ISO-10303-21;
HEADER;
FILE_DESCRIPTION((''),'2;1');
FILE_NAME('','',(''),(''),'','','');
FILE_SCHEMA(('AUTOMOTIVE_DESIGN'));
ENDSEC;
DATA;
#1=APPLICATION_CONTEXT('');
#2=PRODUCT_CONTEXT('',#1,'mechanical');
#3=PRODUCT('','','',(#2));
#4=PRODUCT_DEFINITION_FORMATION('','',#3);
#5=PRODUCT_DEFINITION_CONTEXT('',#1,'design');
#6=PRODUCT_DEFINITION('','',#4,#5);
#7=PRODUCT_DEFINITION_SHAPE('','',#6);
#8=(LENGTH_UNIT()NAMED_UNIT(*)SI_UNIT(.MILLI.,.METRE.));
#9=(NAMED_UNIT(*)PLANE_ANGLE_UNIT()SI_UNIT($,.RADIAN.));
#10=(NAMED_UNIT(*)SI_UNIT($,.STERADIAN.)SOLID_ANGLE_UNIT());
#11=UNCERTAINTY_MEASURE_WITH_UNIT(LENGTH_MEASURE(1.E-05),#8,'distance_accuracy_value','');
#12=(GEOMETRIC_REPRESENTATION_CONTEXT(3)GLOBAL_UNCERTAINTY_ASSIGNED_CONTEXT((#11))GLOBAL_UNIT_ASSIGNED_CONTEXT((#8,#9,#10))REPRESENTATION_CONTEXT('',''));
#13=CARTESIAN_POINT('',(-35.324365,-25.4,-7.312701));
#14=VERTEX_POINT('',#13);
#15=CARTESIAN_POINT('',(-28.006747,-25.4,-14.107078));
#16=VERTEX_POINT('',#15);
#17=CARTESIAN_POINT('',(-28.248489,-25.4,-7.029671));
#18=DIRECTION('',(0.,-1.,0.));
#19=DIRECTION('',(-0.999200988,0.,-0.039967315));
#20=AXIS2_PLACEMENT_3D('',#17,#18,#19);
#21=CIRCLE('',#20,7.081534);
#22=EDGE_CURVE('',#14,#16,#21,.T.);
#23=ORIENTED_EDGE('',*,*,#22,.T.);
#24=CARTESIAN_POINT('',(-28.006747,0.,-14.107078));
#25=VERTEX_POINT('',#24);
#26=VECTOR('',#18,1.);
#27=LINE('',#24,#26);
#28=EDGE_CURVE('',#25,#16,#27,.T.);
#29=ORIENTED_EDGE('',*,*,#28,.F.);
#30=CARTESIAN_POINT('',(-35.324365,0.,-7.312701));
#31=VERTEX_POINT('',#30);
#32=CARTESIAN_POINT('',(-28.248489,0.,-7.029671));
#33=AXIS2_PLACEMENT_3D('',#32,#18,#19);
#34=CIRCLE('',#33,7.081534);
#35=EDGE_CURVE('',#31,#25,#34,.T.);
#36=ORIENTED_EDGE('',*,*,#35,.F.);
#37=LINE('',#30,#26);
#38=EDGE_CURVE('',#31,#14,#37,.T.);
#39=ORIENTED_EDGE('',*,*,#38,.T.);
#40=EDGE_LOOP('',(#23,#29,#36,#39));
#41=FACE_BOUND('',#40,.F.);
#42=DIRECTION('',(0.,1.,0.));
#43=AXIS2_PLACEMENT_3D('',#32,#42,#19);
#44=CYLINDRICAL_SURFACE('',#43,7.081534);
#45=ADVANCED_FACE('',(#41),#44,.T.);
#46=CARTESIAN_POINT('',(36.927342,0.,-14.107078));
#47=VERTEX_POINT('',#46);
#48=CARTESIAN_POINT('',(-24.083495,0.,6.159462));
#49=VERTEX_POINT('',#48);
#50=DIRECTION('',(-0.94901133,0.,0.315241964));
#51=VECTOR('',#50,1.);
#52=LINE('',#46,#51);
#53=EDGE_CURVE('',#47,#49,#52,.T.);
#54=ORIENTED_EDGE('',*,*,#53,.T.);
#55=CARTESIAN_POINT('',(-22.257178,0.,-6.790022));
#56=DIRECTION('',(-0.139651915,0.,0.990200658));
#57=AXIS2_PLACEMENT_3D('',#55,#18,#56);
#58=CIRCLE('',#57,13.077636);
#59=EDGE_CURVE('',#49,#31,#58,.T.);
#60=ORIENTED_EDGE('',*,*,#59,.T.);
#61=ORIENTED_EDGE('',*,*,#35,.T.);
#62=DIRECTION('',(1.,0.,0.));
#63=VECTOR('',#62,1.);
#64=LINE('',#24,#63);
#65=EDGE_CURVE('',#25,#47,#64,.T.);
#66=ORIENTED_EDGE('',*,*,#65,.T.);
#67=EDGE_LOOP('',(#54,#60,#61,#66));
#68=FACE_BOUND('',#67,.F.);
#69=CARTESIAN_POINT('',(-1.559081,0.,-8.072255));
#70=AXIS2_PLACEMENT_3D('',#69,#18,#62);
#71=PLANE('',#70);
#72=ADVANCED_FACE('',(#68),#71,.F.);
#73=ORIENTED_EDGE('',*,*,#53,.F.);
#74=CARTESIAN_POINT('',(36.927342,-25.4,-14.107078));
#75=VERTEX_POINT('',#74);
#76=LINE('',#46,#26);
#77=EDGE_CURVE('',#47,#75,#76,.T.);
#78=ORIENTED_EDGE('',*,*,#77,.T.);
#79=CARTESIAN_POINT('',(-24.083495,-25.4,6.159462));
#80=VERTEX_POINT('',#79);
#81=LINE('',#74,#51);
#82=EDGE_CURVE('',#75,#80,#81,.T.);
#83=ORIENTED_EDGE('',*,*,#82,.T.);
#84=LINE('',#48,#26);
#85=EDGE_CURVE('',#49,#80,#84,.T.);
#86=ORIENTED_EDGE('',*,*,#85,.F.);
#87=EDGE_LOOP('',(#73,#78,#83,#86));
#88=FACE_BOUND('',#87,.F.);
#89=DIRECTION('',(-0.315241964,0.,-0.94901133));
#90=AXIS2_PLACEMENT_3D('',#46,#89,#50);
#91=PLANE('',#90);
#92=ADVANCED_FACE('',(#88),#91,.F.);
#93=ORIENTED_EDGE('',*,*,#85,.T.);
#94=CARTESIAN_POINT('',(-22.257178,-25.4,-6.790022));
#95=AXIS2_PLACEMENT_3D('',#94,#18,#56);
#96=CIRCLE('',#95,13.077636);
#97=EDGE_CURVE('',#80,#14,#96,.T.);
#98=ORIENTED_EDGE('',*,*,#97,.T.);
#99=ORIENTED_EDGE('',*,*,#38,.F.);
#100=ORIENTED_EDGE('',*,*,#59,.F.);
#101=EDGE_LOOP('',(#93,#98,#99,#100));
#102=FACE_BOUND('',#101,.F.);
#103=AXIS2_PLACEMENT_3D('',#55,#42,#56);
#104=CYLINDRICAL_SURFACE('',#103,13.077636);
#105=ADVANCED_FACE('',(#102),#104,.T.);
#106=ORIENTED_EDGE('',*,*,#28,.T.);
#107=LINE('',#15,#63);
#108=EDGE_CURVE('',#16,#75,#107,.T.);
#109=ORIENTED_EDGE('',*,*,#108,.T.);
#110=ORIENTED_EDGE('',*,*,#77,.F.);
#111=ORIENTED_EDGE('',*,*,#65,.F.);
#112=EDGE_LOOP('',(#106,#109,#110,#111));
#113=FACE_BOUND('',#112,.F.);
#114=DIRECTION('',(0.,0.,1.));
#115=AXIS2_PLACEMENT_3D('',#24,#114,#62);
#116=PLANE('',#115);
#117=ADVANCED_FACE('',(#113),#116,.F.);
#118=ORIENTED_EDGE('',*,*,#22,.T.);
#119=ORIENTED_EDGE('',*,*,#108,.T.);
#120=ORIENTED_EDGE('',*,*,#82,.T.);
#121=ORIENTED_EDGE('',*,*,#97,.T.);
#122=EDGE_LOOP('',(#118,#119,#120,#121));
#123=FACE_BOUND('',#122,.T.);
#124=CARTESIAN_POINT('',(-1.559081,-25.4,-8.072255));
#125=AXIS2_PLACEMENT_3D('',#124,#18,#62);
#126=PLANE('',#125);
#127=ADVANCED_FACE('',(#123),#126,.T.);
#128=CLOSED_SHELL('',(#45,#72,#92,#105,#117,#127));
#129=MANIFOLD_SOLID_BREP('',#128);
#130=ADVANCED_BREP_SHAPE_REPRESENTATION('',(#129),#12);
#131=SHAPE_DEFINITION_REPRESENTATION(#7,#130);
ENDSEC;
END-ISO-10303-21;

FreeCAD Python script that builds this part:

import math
import FreeCAD as App
import Part
import Sketcher
from FreeCAD import Vector
Q = App.Units.Quantity

doc = App.newDocument("Part")
body = doc.addObject("PartDesign::Body", "Body")

# Sketch on XZ plane
sketch1 = body.newObject("Sketcher::SketchObject", "Sketch")
sketch1.AttachmentSupport = (doc.getObject("XZ_Plane"), [""])
sketch1.MapMode = "FlatFace"
sketch1.addGeometry([
    Part.ArcOfCircle(Part.Circle(Vector(-22, -7, 0), Vector(0, 0, 1), 13), math.radians(98), math.radians(182)),
    Part.ArcOfCircle(Part.Circle(Vector(-28, -7, 0), Vector(0, 0, 1), 7), math.radians(-178), math.radians(-88)),
    Part.LineSegment(Vector(-28, -14, 0), Vector(37, -14, 0)),
    Part.LineSegment(Vector(37, -14, 0), Vector(-24, 6, 0)),
], False)
sketch1.addConstraint([
    Sketcher.Constraint("Tangent", 0, 2, 1, 1),
    Sketcher.Constraint("Coincident", 1, 2, 2, 1),
    Sketcher.Constraint("Coincident", 2, 2, 3, 1),
    Sketcher.Constraint("Coincident", 3, 2, 0, 1),
    Sketcher.Constraint("Horizontal", 2),
    Sketcher.Constraint("Radius", 0, Q("13.077636 mm")),
    Sketcher.Constraint("Radius", 1, Q("7.081534 mm")),
    Sketcher.Constraint("DistanceY", 0, 2, 3, 2, Q("0.5304001 in")),
    Sketcher.Constraint("DistanceX", 2, 1, 2, 2, Q("64.934089 mm")),
    Sketcher.Constraint("DistanceY", 0, 2, -1, 1, Q("7.312701 mm")),
    Sketcher.Constraint("Distance", 3, Q("64.288839 mm")),
    Sketcher.Constraint("DistanceX", 0, 3, -1, 1, Q("22.257178 mm")),
    Sketcher.Constraint("DistanceY", 0, 3, -1, 1, Q("6.790022 mm")),
])
pad1 = body.newObject("PartDesign::Pad", "Pad")
pad1.Profile = sketch1
pad1.Length = Q("1 in")

doc.recompute()
